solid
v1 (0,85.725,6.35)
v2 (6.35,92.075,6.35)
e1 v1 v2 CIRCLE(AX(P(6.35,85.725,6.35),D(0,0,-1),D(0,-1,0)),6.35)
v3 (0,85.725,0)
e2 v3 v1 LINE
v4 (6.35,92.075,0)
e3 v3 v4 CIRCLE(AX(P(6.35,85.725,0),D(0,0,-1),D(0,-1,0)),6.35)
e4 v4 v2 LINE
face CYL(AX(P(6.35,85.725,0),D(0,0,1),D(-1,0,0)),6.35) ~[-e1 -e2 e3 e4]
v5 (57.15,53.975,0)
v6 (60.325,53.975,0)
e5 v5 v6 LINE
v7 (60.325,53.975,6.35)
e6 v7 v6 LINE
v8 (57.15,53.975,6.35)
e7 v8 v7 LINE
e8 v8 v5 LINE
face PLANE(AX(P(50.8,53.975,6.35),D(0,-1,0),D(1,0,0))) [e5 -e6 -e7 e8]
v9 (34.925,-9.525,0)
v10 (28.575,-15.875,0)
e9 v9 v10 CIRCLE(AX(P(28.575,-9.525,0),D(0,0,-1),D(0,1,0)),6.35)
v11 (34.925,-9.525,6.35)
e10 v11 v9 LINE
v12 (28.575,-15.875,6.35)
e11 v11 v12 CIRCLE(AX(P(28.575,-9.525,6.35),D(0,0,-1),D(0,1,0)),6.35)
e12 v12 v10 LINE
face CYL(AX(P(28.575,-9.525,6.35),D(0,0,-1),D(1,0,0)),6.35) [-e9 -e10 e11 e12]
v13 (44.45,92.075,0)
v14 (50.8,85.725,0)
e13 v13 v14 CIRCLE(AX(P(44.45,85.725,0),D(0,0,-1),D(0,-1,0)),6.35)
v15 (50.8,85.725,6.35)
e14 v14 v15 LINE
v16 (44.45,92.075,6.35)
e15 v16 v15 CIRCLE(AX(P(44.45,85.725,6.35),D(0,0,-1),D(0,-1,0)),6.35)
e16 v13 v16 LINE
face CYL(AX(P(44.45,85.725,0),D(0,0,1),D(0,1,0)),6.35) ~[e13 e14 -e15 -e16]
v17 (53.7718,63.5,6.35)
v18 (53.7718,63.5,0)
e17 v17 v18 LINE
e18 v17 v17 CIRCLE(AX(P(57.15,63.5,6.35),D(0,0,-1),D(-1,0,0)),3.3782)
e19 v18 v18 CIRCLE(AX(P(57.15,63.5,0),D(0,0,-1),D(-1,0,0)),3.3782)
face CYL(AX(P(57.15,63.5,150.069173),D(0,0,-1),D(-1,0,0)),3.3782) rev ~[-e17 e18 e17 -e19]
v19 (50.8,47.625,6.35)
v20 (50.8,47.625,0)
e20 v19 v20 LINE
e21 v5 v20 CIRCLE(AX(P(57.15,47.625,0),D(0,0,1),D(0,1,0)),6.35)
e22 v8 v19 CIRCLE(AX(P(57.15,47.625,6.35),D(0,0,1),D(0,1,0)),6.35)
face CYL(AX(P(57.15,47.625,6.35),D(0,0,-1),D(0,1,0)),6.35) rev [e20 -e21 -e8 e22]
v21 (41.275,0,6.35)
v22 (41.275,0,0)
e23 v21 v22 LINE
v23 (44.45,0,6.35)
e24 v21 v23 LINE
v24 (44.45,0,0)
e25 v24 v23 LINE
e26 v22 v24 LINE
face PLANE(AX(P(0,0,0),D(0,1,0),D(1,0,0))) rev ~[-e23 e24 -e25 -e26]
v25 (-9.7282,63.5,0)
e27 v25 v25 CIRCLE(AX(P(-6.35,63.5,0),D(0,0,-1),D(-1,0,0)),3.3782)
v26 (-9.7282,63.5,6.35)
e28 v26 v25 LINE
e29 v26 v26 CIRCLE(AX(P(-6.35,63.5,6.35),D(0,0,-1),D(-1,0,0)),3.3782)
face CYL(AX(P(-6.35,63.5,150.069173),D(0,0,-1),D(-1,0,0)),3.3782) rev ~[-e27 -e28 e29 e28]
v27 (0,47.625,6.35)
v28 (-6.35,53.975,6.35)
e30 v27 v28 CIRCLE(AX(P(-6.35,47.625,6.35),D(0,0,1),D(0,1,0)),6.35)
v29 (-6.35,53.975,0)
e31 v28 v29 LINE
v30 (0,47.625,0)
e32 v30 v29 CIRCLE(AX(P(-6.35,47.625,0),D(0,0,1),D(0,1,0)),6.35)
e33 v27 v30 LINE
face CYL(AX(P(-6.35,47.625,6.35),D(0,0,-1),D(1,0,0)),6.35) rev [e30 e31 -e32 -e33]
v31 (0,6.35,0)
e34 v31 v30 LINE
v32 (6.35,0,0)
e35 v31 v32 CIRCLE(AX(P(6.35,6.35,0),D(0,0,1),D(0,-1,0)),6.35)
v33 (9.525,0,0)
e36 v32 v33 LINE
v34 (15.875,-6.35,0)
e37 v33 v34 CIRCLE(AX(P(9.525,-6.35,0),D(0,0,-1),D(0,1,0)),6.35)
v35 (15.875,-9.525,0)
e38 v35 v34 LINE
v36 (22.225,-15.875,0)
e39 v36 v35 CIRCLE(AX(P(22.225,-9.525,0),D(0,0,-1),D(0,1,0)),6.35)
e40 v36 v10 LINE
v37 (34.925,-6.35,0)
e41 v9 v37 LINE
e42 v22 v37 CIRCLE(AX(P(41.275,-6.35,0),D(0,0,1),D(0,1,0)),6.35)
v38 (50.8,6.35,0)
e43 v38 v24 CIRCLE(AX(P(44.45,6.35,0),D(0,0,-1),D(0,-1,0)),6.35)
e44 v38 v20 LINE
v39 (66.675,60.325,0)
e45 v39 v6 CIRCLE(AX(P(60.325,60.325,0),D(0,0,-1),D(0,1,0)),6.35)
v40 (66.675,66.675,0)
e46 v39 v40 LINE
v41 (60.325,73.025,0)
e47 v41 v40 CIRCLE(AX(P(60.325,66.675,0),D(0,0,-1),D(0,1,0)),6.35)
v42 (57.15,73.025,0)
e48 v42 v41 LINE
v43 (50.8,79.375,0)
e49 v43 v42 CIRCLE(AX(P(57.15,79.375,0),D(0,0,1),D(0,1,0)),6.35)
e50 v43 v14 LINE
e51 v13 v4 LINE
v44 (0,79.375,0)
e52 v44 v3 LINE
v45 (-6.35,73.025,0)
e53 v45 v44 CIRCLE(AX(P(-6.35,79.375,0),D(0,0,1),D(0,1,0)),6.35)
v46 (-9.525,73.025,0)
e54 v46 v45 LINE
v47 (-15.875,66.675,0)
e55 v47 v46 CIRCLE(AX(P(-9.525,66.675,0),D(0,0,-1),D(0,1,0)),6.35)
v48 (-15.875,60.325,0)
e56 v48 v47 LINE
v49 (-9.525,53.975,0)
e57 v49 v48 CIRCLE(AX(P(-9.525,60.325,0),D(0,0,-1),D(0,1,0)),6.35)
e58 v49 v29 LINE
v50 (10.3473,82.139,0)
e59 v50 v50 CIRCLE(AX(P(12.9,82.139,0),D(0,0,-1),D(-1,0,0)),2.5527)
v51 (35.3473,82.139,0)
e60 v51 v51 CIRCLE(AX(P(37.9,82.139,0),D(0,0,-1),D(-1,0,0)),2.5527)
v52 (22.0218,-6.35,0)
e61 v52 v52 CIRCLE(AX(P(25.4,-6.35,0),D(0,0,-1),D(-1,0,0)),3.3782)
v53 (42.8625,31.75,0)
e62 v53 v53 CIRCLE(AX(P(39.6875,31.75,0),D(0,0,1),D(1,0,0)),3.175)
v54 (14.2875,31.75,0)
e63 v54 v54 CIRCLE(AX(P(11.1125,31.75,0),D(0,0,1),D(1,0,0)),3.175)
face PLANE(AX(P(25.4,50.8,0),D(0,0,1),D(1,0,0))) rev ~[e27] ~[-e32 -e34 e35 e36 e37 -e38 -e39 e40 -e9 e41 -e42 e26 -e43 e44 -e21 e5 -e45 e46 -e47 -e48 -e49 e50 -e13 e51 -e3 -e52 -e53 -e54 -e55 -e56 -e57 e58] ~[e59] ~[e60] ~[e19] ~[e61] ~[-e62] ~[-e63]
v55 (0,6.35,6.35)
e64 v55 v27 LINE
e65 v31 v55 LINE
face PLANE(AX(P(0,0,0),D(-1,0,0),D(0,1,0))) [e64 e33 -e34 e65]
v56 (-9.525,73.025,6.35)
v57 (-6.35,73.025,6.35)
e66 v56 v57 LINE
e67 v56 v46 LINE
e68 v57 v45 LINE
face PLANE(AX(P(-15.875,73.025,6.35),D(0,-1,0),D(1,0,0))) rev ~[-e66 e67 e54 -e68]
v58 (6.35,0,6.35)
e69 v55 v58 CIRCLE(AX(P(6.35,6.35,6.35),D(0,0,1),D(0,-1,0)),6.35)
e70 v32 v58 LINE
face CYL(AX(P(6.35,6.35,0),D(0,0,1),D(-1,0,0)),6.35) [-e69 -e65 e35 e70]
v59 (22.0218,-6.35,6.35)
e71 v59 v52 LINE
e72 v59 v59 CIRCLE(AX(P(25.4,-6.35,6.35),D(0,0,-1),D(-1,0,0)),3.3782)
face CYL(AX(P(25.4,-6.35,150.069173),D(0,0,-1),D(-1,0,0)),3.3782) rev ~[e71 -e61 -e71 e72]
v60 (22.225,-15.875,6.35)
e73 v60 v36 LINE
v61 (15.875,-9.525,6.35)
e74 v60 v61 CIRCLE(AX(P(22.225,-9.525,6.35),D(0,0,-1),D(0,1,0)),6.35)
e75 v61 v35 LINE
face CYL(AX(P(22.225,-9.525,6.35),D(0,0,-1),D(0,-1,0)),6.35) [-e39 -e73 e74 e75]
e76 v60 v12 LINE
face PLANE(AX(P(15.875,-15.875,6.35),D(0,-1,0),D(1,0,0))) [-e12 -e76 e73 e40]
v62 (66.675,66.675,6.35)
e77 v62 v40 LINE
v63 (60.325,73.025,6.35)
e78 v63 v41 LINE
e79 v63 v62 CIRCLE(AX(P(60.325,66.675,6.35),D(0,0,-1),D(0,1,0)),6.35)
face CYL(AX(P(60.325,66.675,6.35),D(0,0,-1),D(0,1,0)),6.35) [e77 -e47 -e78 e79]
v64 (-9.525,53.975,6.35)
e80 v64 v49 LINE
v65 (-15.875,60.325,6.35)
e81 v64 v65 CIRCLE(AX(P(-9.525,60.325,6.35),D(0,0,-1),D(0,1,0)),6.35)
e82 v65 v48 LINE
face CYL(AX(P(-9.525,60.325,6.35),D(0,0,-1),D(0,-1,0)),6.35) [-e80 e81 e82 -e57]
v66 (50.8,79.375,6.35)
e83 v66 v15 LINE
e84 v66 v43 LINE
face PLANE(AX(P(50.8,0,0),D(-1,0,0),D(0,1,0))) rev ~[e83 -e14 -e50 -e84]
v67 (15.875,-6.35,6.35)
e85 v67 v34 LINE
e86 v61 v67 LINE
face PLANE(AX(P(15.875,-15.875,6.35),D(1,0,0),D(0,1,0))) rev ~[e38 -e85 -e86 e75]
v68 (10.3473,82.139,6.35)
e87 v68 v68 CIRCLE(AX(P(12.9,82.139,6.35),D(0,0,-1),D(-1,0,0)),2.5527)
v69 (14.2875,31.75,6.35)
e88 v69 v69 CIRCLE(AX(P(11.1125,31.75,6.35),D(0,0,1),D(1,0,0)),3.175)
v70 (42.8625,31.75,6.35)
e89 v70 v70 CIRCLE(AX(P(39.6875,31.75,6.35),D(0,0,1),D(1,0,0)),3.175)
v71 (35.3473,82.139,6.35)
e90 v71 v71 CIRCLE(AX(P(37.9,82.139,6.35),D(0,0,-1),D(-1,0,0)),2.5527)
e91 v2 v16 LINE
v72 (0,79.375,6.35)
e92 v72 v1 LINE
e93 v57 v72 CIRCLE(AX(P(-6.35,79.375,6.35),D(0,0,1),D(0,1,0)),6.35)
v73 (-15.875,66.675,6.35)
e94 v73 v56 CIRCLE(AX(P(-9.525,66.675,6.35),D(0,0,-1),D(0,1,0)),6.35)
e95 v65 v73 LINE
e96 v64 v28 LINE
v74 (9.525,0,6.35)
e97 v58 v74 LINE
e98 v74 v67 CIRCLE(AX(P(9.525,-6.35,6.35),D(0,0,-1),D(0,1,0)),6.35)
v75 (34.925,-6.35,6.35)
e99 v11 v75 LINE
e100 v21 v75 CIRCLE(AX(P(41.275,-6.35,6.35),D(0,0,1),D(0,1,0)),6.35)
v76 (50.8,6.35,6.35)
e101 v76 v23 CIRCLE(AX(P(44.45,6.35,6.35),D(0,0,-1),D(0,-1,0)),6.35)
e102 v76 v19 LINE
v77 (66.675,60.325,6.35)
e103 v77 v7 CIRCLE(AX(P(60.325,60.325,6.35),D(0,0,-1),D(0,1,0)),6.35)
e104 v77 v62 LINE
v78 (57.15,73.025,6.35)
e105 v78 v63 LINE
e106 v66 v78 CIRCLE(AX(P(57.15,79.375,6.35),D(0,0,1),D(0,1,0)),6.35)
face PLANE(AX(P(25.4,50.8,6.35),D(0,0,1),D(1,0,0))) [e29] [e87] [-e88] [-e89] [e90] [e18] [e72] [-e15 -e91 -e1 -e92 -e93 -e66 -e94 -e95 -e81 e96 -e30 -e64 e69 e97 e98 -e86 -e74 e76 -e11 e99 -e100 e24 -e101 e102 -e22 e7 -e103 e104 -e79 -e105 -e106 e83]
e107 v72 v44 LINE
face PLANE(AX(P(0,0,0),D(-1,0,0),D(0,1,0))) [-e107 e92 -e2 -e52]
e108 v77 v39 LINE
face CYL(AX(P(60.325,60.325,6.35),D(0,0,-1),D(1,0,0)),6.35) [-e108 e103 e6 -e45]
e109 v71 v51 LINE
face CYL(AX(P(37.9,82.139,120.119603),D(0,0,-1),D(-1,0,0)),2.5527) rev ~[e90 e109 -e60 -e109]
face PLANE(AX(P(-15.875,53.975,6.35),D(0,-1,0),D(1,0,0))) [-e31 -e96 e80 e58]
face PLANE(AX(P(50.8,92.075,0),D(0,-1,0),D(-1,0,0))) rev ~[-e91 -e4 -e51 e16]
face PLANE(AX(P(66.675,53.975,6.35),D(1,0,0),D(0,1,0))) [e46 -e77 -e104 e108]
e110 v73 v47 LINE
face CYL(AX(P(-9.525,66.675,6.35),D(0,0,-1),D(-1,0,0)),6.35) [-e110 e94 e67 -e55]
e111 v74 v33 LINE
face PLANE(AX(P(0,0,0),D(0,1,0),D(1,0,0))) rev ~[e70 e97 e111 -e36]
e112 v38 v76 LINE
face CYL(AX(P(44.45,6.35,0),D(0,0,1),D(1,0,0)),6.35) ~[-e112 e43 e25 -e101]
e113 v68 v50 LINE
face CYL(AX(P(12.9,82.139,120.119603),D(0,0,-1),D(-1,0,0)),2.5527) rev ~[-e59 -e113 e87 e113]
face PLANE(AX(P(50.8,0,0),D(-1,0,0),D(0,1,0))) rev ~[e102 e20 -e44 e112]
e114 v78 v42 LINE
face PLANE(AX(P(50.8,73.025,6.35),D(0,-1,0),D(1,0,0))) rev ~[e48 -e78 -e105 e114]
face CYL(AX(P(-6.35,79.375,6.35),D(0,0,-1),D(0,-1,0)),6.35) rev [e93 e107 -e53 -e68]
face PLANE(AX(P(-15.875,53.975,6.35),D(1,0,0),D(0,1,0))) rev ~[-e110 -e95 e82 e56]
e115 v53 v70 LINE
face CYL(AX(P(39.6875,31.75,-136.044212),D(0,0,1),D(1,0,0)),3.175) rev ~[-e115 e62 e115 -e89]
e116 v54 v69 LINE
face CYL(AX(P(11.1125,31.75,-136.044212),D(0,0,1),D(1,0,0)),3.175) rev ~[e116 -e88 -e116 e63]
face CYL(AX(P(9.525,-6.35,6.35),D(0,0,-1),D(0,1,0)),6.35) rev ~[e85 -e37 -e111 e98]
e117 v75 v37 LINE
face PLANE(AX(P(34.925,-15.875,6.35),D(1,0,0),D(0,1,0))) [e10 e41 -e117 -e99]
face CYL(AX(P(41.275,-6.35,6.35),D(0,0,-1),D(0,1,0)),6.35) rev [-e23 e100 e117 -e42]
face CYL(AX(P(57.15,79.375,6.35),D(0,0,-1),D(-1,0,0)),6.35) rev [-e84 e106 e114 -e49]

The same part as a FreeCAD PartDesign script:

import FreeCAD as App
import Part
import Sketcher
from FreeCAD import Vector
Q = App.Units.Quantity


def edges_at(feature, points):
    """Names of the edges that pass closest to the given points."""
    edges = feature.Shape.Edges
    near = lambda p: min(range(len(edges)), key=lambda i: edges[i].distToShape(Part.Vertex(*p))[0])
    return sorted({f"Edge{near(p) + 1}" for p in points})


def add_polygon(sketch, points):
    """Adds a closed chain of lines whose ends are joined by coincident constraints."""
    first, n = sketch.GeometryCount, len(points)
    for a, b in zip(points, points[1:] + points[:1]):
        sketch.addGeometry(Part.LineSegment(App.Vector(*a, 0), App.Vector(*b, 0)), False)
    for i in range(n):
        sketch.addConstraint(Sketcher.Constraint("Coincident", first + i, 2, first + (i + 1) % n, 1))

doc = App.newDocument("Part")
params = doc.addObject("Spreadsheet::Sheet", "Params")
for row, (alias, value) in enumerate([
    ("sketch1_width", "2 in"),
    ("sketch1_height", "4 in"),
    ("pad1_length", "0.25 in"),
    ("sketch2_diameter", "0.201 in"),
    ("hole_diameter", "0.201 in"),
    ("sketch3_width", "0.75 in"),
    ("pad2_length", "0.25 in"),
    ("sketch4_diameter", "0.266 in"),
    ("hole2_diameter", "0.266 in"),
    ("sketch5_width", "2 in"),
    ("sketch5_height", "0.375 in"),
    ("fillet_radius", "0.25 in"),
    ("sketch6_diameter", "0.25 in"),
    ("hole3_diameter", "0.25 in"),
], start=1):
    params.set(f"A{row}", alias)
    params.set(f"B{row}", "=" + value)
    params.setAlias(f"B{row}", alias)

body = doc.addObject("PartDesign::Body", "Body")

sketch1 = doc.addObject("Sketcher::SketchObject", "Sketch")
body.addObject(sketch1)
sketch1.AttachmentSupport = (doc.XY_Plane, [""])
sketch1.MapMode = "FlatFace"
add_polygon(sketch1, [(0, 101.6), (0, 0), (50.8, 0), (50.8, 101.6)])
sketch1.addConstraint(Sketcher.Constraint("Vertical", 0))
sketch1.addConstraint(Sketcher.Constraint("Horizontal", 1))
sketch1.addConstraint(Sketcher.Constraint("Vertical", 2))
sketch1.addConstraint(Sketcher.Constraint("Horizontal", 3))
sketch1.addConstraint(Sketcher.Constraint("Coincident", 0, 2, -1, 1))
sketch1.addConstraint(Sketcher.Constraint("DistanceX", 1, 1, 1, 2, Q("2 in")))
sketch1.addConstraint(Sketcher.Constraint("DistanceY", 0, 2, 0, 1, Q("4 in")))
sketch1.setExpression("Constraints[9]", "Params.sketch1_width")
sketch1.setExpression("Constraints[10]", "Params.sketch1_height")
pad1 = doc.addObject("PartDesign::Pad", "Pad")
body.addObject(pad1)
pad1.Profile = sketch1
pad1.setExpression("Length", "Params.pad1_length")

sketch2 = doc.addObject("Sketcher::SketchObject", "Sketch001")
body.addObject(sketch2)
sketch2.AttachmentSupport = (doc.XY_Plane, [""])
sketch2.MapMode = "FlatFace"
sketch2.AttachmentOffset = App.Placement(Vector(0, 0, 0.25 * 25.4), App.Rotation())
sketch2.addGeometry(Part.Circle(Vector(12.9, 82.139, 0), Vector(0, 0, 1), 2.5527), False)
sketch2.addGeometry(Part.Circle(Vector(37.9, 82.139, 0), Vector(0, 0, 1), 2.5527), False)
sketch2.addConstraint(Sketcher.Constraint("Equal", 0, 1))
sketch2.addConstraint(Sketcher.Constraint("Horizontal", 0, 3, 1, 3))
sketch2.addConstraint(Sketcher.Constraint("Diameter", 0, Q("0.201 in")))
sketch2.addConstraint(Sketcher.Constraint("DistanceX", -1, 1, 0, 3, 12.9))
sketch2.addConstraint(Sketcher.Constraint("DistanceY", -1, 1, 0, 3, 82.139))
sketch2.addConstraint(Sketcher.Constraint("DistanceX", -1, 1, 1, 3, 37.9))
sketch2.setExpression("Constraints[2]", "Params.sketch2_diameter")
doc.recompute()
hole = doc.addObject("PartDesign::Hole", "Hole")
body.addObject(hole)
hole.Profile = sketch2
hole.ThreadType = "None"
hole.setExpression("Diameter", "Params.hole_diameter")
hole.DepthType = "ThroughAll"

sketch3 = doc.addObject("Sketcher::SketchObject", "Sketch002")
body.addObject(sketch3)
sketch3.AttachmentSupport = (doc.XY_Plane, [""])
sketch3.MapMode = "FlatFace"
sketch3.AttachmentOffset = App.Placement(Vector(0, 0, 0.25 * 25.4), App.Rotation())
add_polygon(sketch3, [(-15.875, 73.025), (-15.875, 53.975), (0, 53.975), (0, 73.025)])
add_polygon(sketch3, [(50.8, 73.025), (50.8, 53.975), (66.675, 53.975), (66.675, 73.025)])
add_polygon(sketch3, [(15.875, 0), (15.875, -15.875), (34.925, -15.875), (34.925, 0)])
sketch3.addConstraint(Sketcher.Constraint("Vertical", 0))
sketch3.addConstraint(Sketcher.Constraint("Horizontal", 1))
sketch3.addConstraint(Sketcher.Constraint("Vertical", 2))
sketch3.addConstraint(Sketcher.Constraint("Horizontal", 3))
sketch3.addConstraint(Sketcher.Constraint("Vertical", 4))
sketch3.addConstraint(Sketcher.Constraint("Horizontal", 5))
sketch3.addConstraint(Sketcher.Constraint("Vertical", 6))
sketch3.addConstraint(Sketcher.Constraint("Horizontal", 7))
sketch3.addConstraint(Sketcher.Constraint("Vertical", 8))
sketch3.addConstraint(Sketcher.Constraint("Horizontal", 9))
sketch3.addConstraint(Sketcher.Constraint("Vertical", 10))
sketch3.addConstraint(Sketcher.Constraint("Horizontal", 11))
sketch3.addConstraint(Sketcher.Constraint("PointOnObject", 1, 2, -2))
sketch3.addConstraint(Sketcher.Constraint("PointOnObject", 10, 2, -1))
sketch3.addConstraint(Sketcher.Constraint("Horizontal", 1, 2, 4, 2))
sketch3.addConstraint(Sketcher.Constraint("Horizontal", 3, 2, 6, 2))
sketch3.addConstraint(Sketcher.Constraint("Equal", 3, 5))
sketch3.addConstraint(Sketcher.Constraint("Equal", 11, 0))
sketch3.addConstraint(Sketcher.Constraint("Equal", 7, 8))
sketch3.addConstraint(Sketcher.Constraint("DistanceX", -1, 1, 4, 2, Q("2 in")))
sketch3.addConstraint(Sketcher.Constraint("DistanceX", 8, 2, 5, 2, Q("2 in")))
sketch3.addConstraint(Sketcher.Constraint("DistanceX", 0, 2, 9, 2, Q("2 in")))
sketch3.addConstraint(Sketcher.Constraint("DistanceX", 9, 1, 9, 2, Q("0.75 in")))
sketch3.addConstraint(Sketcher.Constraint("DistanceY", 8, 2, 2, 2, Q("3.5 in")))
sketch3.setExpression("Constraints[34]", "Params.sketch3_width")
pad2 = doc.addObject("PartDesign::Pad", "Pad001")
body.addObject(pad2)
pad2.Profile = sketch3
pad2.setExpression("Length", "Params.pad2_length")
pad2.Reversed = True

sketch4 = doc.addObject("Sketcher::SketchObject", "Sketch003")
body.addObject(sketch4)
sketch4.AttachmentSupport = (doc.XY_Plane, [""])
sketch4.MapMode = "FlatFace"
sketch4.AttachmentOffset = App.Placement(Vector(0, 0, 0.25 * 25.4), App.Rotation())
sketch4.addGeometry(Part.Circle(Vector(-6.35, 63.5, 0), Vector(0, 0, 1), 3.3782), False)
sketch4.addGeometry(Part.Circle(Vector(57.15, 63.5, 0), Vector(0, 0, 1), 3.3782), False)
sketch4.addGeometry(Part.Circle(Vector(25.4, -6.35, 0), Vector(0, 0, 1), 3.3782), False)
sketch4.addConstraint(Sketcher.Constraint("Equal", 0, 1))
sketch4.addConstraint(Sketcher.Constraint("Equal", 1, 2))
sketch4.addConstraint(Sketcher.Constraint("Horizontal", 0, 3, 1, 3))
sketch4.addConstraint(Sketcher.Constraint("Diameter", 0, Q("0.266 in")))
sketch4.addConstraint(Sketcher.Constraint("DistanceX", -1, 1, 2, 3, Q("1 in")))
sketch4.addConstraint(Sketcher.Constraint("DistanceY", -1, 1, 0, 3, Q("2.5 in")))
sketch4.addConstraint(Sketcher.Constraint("DistanceX", 0, 3, 1, 3, Q("2.5 in")))
sketch4.addConstraint(Sketcher.Constraint("DistanceX", 0, 3, -1, 1, Q("0.25 in")))
sketch4.addConstraint(Sketcher.Constraint("DistanceY", 2, 3, -1, 1, Q("0.25 in")))
sketch4.setExpression("Constraints[3]", "Params.sketch4_diameter")
doc.recompute()
hole2 = doc.addObject("PartDesign::Hole", "Hole001")
body.addObject(hole2)
hole2.Profile = sketch4
hole2.ThreadType = "None"
hole2.setExpression("Diameter", "Params.hole2_diameter")
hole2.DepthType = "ThroughAll"

sketch5 = doc.addObject("Sketcher::SketchObject", "Sketch004")
body.addObject(sketch5)
sketch5.AttachmentSupport = (doc.XY_Plane, [""])
sketch5.MapMode = "FlatFace"
add_polygon(sketch5, [(50.8, 101.6), (50.8, 92.075), (0, 92.075), (0, 101.6)])
sketch5.addConstraint(Sketcher.Constraint("Vertical", 0))
sketch5.addConstraint(Sketcher.Constraint("Horizontal", 1))
sketch5.addConstraint(Sketcher.Constraint("Vertical", 2))
sketch5.addConstraint(Sketcher.Constraint("Horizontal", 3))
sketch5.addConstraint(Sketcher.Constraint("PointOnObject", 1, 2, -2))
sketch5.addConstraint(Sketcher.Constraint("DistanceX", 1, 2, 1, 1, Q("2 in")))
sketch5.addConstraint(Sketcher.Constraint("DistanceY", -1, 1, 2, 2, Q("4 in")))
sketch5.addConstraint(Sketcher.Constraint("DistanceY", 0, 2, 0, 1, Q("0.375 in")))
sketch5.setExpression("Constraints[9]", "Params.sketch5_width")
sketch5.setExpression("Constraints[11]", "Params.sketch5_height")
pocket1 = doc.addObject("PartDesign::Pocket", "Pocket")
body.addObject(pocket1)
pocket1.Profile = sketch5
pocket1.Type = "ThroughAll"
pocket1.Reversed = True
doc.recompute()

fillet = doc.addObject("PartDesign::Fillet", "Fillet")
body.addObject(fillet)
fillet.Base = (pocket1, edges_at(pocket1, [
    (-15.875, 73.025, 3.175),
    (-15.875, 53.975, 3.175),
    (0, 53.975, 3.175),
    (0, 73.025, 3.175),
    (50.8, 53.975, 3.175),
    (66.675, 53.975, 3.175),
    (66.675, 73.025, 3.175),
    (50.8, 73.025, 3.175),
    (34.925, -15.875, 3.175),
    (34.925, 0, 3.175),
    (15.875, 0, 3.175),
    (15.875, -15.875, 3.175),
    (50.8, 0, 3.175),
    (0, 0, 3.175),
    (50.8, 92.075, 3.175),
    (0, 92.075, 3.175),
]))
fillet.setExpression("Radius", "Params.fillet_radius")

sketch6 = doc.addObject("Sketcher::SketchObject", "Sketch005")
body.addObject(sketch6)
sketch6.AttachmentSupport = (doc.XY_Plane, [""])
sketch6.MapMode = "FlatFace"
sketch6.addGeometry(Part.Circle(Vector(39.6875, 31.75, 0), Vector(0, 0, 1), 3.175), False)
sketch6.addGeometry(Part.Circle(Vector(11.1125, 31.75, 0), Vector(0, 0, 1), 3.175), False)
sketch6.addConstraint(Sketcher.Constraint("Equal", 0, 1))
sketch6.addConstraint(Sketcher.Constraint("Horizontal", 0, 3, 1, 3))
sketch6.addConstraint(Sketcher.Constraint("Diameter", 0, Q("0.25 in")))
sketch6.addConstraint(Sketcher.Constraint("DistanceY", -1, 1, 0, 3, Q("1.25 in")))
sketch6.addConstraint(Sketcher.Constraint("DistanceX", -1, 1, 0, 3, Q("1.5625 in")))
sketch6.addConstraint(Sketcher.Constraint("DistanceX", -1, 1, 1, 3, Q("0.4375 in")))
sketch6.setExpression("Constraints[2]", "Params.sketch6_diameter")
doc.recompute()
hole3 = doc.addObject("PartDesign::Hole", "Hole002")
body.addObject(hole3)
hole3.Profile = sketch6
hole3.ThreadType = "None"
hole3.setExpression("Diameter", "Params.hole3_diameter")
hole3.DepthType = "ThroughAll"
hole3.Reversed = True

doc.recompute()
